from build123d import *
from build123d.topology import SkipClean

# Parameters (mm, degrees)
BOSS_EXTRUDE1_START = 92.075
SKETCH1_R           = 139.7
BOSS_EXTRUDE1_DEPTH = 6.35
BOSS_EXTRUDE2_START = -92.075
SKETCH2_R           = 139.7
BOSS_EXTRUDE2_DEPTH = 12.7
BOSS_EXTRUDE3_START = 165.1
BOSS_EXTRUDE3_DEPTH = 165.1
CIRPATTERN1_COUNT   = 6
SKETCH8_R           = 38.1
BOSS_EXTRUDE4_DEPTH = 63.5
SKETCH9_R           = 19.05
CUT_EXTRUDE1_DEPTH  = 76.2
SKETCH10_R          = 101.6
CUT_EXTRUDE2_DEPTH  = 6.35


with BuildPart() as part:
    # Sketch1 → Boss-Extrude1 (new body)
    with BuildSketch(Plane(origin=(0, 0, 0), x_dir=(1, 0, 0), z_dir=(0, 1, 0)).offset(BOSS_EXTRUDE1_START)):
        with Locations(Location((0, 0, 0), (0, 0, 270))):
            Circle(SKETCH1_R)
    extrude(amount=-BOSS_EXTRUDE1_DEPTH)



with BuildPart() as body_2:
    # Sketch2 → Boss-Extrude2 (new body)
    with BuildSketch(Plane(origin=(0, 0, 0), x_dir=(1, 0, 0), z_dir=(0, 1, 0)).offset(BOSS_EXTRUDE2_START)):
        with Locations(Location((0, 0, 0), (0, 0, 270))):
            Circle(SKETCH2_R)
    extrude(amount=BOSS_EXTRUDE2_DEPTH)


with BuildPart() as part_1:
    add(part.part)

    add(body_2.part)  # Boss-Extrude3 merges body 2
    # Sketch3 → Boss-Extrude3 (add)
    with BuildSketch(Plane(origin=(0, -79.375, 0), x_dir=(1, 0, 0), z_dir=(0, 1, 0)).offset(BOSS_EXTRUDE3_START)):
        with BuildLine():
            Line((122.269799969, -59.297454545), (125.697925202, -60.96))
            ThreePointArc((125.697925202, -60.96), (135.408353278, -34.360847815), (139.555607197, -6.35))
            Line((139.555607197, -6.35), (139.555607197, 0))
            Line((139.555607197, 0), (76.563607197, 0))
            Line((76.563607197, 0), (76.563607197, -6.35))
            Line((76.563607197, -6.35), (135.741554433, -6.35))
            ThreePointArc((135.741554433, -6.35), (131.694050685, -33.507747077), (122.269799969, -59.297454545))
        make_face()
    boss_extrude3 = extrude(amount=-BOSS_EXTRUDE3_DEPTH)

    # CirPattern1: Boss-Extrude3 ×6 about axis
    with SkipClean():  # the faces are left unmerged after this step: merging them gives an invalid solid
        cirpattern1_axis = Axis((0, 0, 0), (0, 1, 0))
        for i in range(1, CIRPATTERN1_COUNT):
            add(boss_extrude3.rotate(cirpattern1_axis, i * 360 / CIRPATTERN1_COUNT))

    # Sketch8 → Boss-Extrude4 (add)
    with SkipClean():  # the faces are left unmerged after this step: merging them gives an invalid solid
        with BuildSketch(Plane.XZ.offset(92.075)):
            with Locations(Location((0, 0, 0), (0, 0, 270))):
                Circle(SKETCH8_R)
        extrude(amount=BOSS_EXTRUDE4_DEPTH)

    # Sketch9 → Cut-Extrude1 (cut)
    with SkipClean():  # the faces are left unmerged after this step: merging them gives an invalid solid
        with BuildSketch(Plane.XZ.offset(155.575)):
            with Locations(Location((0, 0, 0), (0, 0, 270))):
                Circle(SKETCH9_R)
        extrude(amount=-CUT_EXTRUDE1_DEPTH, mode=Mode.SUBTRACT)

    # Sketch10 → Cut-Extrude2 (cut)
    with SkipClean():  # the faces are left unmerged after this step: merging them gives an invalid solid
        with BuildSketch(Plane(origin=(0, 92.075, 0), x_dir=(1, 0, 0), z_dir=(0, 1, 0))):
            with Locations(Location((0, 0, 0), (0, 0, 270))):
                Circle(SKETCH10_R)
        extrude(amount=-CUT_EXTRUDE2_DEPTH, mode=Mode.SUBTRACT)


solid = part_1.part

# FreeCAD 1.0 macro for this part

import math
import FreeCAD as App
import Part
import Sketcher
from FreeCAD import Vector
Q = App.Units.Quantity

doc = App.newDocument("Part")
body = doc.addObject("PartDesign::Body", "Body")

# Sketch on XZ plane
sketch1 = body.newObject("Sketcher::SketchObject", "Sketch")
sketch1.AttachmentSupport = (doc.getObject("XZ_Plane"), [""])
sketch1.MapMode = "FlatFace"
sketch1.AttachmentOffset = App.Placement(Vector(0, 0, -3.625 * 25.4), App.Rotation())
sketch1.addGeometry(Part.Circle(Vector(0, 0, 0), Vector(0, 0, 1), 140), False)
sketch1.addConstraint([
    Sketcher.Constraint("Coincident", 0, 3, -1, 1),
    Sketcher.Constraint("Diameter", 0, Q("11 in")),
])
pad1 = body.newObject("PartDesign::Pad", "Pad")
pad1.Profile = sketch1
pad1.Length = Q("0.25 in")
body2 = doc.addObject("PartDesign::Body", "Body001")

# Sketch on XZ plane
sketch2 = body2.newObject("Sketcher::SketchObject", "Sketch001")
sketch2.AttachmentSupport = (doc.getObject("XZ_Plane001"), [""])
sketch2.MapMode = "FlatFace"
sketch2.AttachmentOffset = App.Placement(Vector(0, 0, 3.625 * 25.4), App.Rotation())
sketch2.addGeometry(Part.Circle(Vector(0, 0, 0), Vector(0, 0, 1), 140), False)
sketch2.addConstraint([
    Sketcher.Constraint("Coincident", 0, 3, -1, 1),
    Sketcher.Constraint("Diameter", 0, Q("11 in")),
])
pad2 = body2.newObject("PartDesign::Pad", "Pad001")
pad2.Profile = sketch2
pad2.Length = Q("0.5 in")
pad2.Reversed = True
body.AllowCompound = True
doc.recompute()

boolean = body.newObject("PartDesign::Boolean", "Boolean")
boolean.Type = "Fuse"
boolean.addObjects([body2])

# Sketch on XZ plane
sketch3 = body.newObject("Sketcher::SketchObject", "Sketch002")
sketch3.AttachmentSupport = (doc.getObject("XZ_Plane"), [""])
sketch3.MapMode = "FlatFace"
sketch3.AttachmentOffset = App.Placement(Vector(0, 0, -3.375 * 25.4), App.Rotation())
sketch3.addGeometry([
    Part.LineSegment(Vector(122.3, 59.3, 0), Vector(125.7, 61, 0)),  # 0
    Part.ArcOfCircle(Part.Circle(Vector(0, 0, 0), Vector(0, 0, 1), 139.7), math.radians(3), math.radians(26)),  # 1
    Part.LineSegment(Vector(139.6, 6.3, 0), Vector(139.6, 0, 0)),  # 2
    Part.LineSegment(Vector(139.6, 0, 0), Vector(76.6, 0, 0)),  # 3
    Part.LineSegment(Vector(76.6, 0, 0), Vector(76.6, 6.3, 0)),  # 4
    Part.LineSegment(Vector(76.6, 6.3, 0), Vector(135.7, 6.3, 0)),  # 5
    Part.ArcOfCircle(Part.Circle(Vector(0, 0, 0), Vector(0, 0, 1), 135.9), math.radians(3), math.radians(26)),  # 6
], False)
sketch3.addConstraint([
    Sketcher.Constraint("Coincident", 0, 2, 1, 2),
    Sketcher.Constraint("Coincident", 1, 1, 2, 1),
    Sketcher.Constraint("Coincident", 2, 2, 3, 1),
    Sketcher.Constraint("Coincident", 3, 2, 4, 1),
    Sketcher.Constraint("Coincident", 4, 2, 5, 1),
    Sketcher.Constraint("Coincident", 5, 2, 6, 1),
    Sketcher.Constraint("Coincident", 6, 2, 0, 1),
    Sketcher.Constraint("Vertical", 2),
    Sketcher.Constraint("Horizontal", 3),
    Sketcher.Constraint("Vertical", 4),
    Sketcher.Constraint("Horizontal", 5),
    Sketcher.Constraint("Coincident", 1, 3, -1, 1),
    Sketcher.Constraint("Coincident", 6, 3, -1, 1),
    Sketcher.Constraint("PointOnObject", 2, 2, -1),
    Sketcher.Constraint("Horizontal", 1, 1, 4, 2),
    Sketcher.Constraint("Radius", 1, Q("5.5 in")),
    Sketcher.Constraint("Radius", 6, Q("5.35 in")),
    Sketcher.Constraint("DistanceX", 3, 2, 3, 1, Q("2.48 in")),
    Sketcher.Constraint("DistanceY", 2, 2, 2, 1, Q("0.25 in")),
    Sketcher.Constraint("DistanceY", -1, 1, 0, 2, Q("2.4 in")),
    Sketcher.Constraint("DistanceX", -1, 1, 6, 2, 122.2698),
])
pad3 = body.newObject("PartDesign::Pad", "Pad002")
pad3.Profile = sketch3
pad3.Length = Q("6.5 in")
doc.recompute()

polarpattern = body.newObject("PartDesign::PolarPattern", "PolarPattern")
polarpattern.Originals = [pad3]
polarpattern.Axis = (doc.getObject("Y_Axis"), [""])
polarpattern.Angle = 360
polarpattern.Occurrences = 6
body.Tip = polarpattern

# Sketch on XZ plane
sketch4 = body.newObject("Sketcher::SketchObject", "Sketch003")
sketch4.AttachmentSupport = (doc.getObject("XZ_Plane"), [""])
sketch4.MapMode = "FlatFace"
sketch4.AttachmentOffset = App.Placement(Vector(0, 0, 3.625 * 25.4), App.Rotation())
sketch4.addGeometry(Part.Circle(Vector(0, 0, 0), Vector(0, 0, 1), 38), False)
sketch4.addConstraint([
    Sketcher.Constraint("Coincident", 0, 3, -1, 1),
    Sketcher.Constraint("Diameter", 0, Q("3 in")),
])
pad4 = body.newObject("PartDesign::Pad", "Pad003")
pad4.Profile = sketch4
pad4.Length = Q("2.5 in")

# Sketch on XZ plane
sketch5 = body.newObject("Sketcher::SketchObject", "Sketch004")
sketch5.AttachmentSupport = (doc.getObject("XZ_Plane"), [""])
sketch5.MapMode = "FlatFace"
sketch5.AttachmentOffset = App.Placement(Vector(0, 0, 6.125 * 25.4), App.Rotation())
sketch5.addGeometry(Part.Circle(Vector(0, 0, 0), Vector(0, 0, 1), 19), False)
sketch5.addConstraint([
    Sketcher.Constraint("Coincident", 0, 3, -1, 1),
    Sketcher.Constraint("Diameter", 0, Q("1.5 in")),
])
pocket1 = body.newObject("PartDesign::Pocket", "Pocket")
pocket1.Profile = sketch5
pocket1.Length = Q("3 in")

# Sketch on XZ plane
sketch6 = body.newObject("Sketcher::SketchObject", "Sketch005")
sketch6.AttachmentSupport = (doc.getObject("XZ_Plane"), [""])
sketch6.MapMode = "FlatFace"
sketch6.AttachmentOffset = App.Placement(Vector(0, 0, -3.625 * 25.4), App.Rotation())
sketch6.addGeometry(Part.Circle(Vector(0, 0, 0), Vector(0, 0, 1), 102), False)
sketch6.addConstraint([
    Sketcher.Constraint("Coincident", 0, 3, -1, 1),
    Sketcher.Constraint("Diameter", 0, Q("8 in")),
])
pocket2 = body.newObject("PartDesign::Pocket", "Pocket001")
pocket2.Profile = sketch6
pocket2.Length = Q("0.25 in")
pocket2.Reversed = True

doc.recompute()
